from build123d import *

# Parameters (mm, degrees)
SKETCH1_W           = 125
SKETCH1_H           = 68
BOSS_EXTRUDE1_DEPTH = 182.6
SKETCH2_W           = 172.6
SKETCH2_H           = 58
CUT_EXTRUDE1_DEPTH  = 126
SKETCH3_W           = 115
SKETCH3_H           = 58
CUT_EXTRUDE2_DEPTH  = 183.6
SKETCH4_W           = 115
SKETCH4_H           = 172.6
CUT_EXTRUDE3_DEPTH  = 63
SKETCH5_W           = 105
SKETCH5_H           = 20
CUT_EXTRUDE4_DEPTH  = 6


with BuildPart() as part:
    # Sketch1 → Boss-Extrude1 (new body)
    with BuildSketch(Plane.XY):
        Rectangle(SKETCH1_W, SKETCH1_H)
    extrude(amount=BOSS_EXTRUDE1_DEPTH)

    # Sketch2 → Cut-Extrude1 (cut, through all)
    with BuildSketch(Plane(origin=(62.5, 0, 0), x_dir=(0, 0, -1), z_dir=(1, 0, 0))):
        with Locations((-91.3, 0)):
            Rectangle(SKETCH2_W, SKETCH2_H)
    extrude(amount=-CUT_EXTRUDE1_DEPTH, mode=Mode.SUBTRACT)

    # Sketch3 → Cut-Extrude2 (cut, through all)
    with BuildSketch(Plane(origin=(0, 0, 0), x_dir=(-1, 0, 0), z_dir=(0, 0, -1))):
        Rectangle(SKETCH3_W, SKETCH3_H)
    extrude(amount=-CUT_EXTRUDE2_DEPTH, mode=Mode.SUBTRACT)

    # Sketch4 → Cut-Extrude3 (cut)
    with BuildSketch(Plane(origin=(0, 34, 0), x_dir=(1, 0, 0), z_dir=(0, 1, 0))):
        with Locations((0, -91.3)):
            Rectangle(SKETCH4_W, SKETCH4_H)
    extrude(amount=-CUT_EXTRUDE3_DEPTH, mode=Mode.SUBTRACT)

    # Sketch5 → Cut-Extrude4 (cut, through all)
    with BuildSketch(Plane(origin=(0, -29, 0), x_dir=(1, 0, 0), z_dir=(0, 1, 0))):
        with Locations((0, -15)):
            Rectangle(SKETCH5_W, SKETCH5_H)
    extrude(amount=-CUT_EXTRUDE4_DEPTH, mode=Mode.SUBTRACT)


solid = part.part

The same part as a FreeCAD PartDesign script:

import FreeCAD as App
import Part
import Sketcher
from FreeCAD import Vector
Q = App.Units.Quantity


def add_polygon(sketch, points):
    """Adds a closed chain of lines whose ends are joined by coincident constraints."""
    first, n = sketch.GeometryCount, len(points)
    for a, b in zip(points, points[1:] + points[:1]):
        sketch.addGeometry(Part.LineSegment(App.Vector(*a, 0), App.Vector(*b, 0)), False)
    for i in range(n):
        sketch.addConstraint(Sketcher.Constraint("Coincident", first + i, 2, first + (i + 1) % n, 1))

doc = App.newDocument("Part")
body = doc.addObject("PartDesign::Body", "Body")

# Sketch on XY plane
sketch1 = body.newObject("Sketcher::SketchObject", "Sketch")
sketch1.AttachmentSupport = (doc.getObject("XY_Plane"), [""])
sketch1.MapMode = "FlatFace"
add_polygon(sketch1, [(-62.5, 34), (-62.5, -34), (62.5, -34), (62.5, 34)])  # lines 0-3
sketch1.addConstraint([
    Sketcher.Constraint("Vertical", 0),
    Sketcher.Constraint("Horizontal", 1),
    Sketcher.Constraint("Vertical", 2),
    Sketcher.Constraint("Horizontal", 3),
    Sketcher.Constraint("Symmetric", 0, 2, 2, 2, -1, 1),
    Sketcher.Constraint("DistanceX", 1, 1, 1, 2, Q("125 mm")),
    Sketcher.Constraint("DistanceY", 0, 2, 0, 1, Q("68 mm")),
])
pad1 = body.newObject("PartDesign::Pad", "Pad")
pad1.Profile = sketch1
pad1.Length = 182.6

# Sketch on YZ plane
sketch2 = body.newObject("Sketcher::SketchObject", "Sketch001")
sketch2.AttachmentSupport = (doc.getObject("YZ_Plane"), [""])
sketch2.MapMode = "FlatFace"
sketch2.AttachmentOffset = App.Placement(Vector(0, 0, 62.5), App.Rotation())
add_polygon(sketch2, [(29, 177.6), (-29, 177.6), (-29, 5), (29, 5)])  # lines 0-3
sketch2.addConstraint([
    Sketcher.Constraint("Horizontal", 0),
    Sketcher.Constraint("Vertical", 1),
    Sketcher.Constraint("Horizontal", 2),
    Sketcher.Constraint("Vertical", 3),
    Sketcher.Constraint("DistanceX", 0, 2, 0, 1, Q("58 mm")),
    Sketcher.Constraint("DistanceY", 1, 2, 1, 1, Q("172.6 mm")),
    Sketcher.Constraint("DistanceX", 0, 2, -1, 1, Q("29 mm")),
    Sketcher.Constraint("DistanceY", -1, 1, 1, 2, Q("5 mm")),
])
pocket1 = body.newObject("PartDesign::Pocket", "Pocket")
pocket1.Profile = sketch2
pocket1.Type = "ThroughAll"

# Sketch on XY plane
sketch3 = body.newObject("Sketcher::SketchObject", "Sketch002")
sketch3.AttachmentSupport = (doc.getObject("XY_Plane"), [""])
sketch3.MapMode = "FlatFace"
add_polygon(sketch3, [(57.5, 29), (57.5, -29), (-57.5, -29), (-57.5, 29)])  # lines 0-3
sketch3.addConstraint([
    Sketcher.Constraint("Vertical", 0),
    Sketcher.Constraint("Horizontal", 1),
    Sketcher.Constraint("Vertical", 2),
    Sketcher.Constraint("Horizontal", 3),
    Sketcher.Constraint("Symmetric", 0, 2, 2, 2, -1, 1),
    Sketcher.Constraint("DistanceX", 1, 2, 1, 1, Q("115 mm")),
    Sketcher.Constraint("DistanceY", 0, 2, 0, 1, Q("58 mm")),
])
pocket2 = body.newObject("PartDesign::Pocket", "Pocket001")
pocket2.Profile = sketch3
pocket2.Type = "ThroughAll"
pocket2.Reversed = True

# Sketch on XZ plane
sketch4 = body.newObject("Sketcher::SketchObject", "Sketch003")
sketch4.AttachmentSupport = (doc.getObject("XZ_Plane"), [""])
sketch4.MapMode = "FlatFace"
sketch4.AttachmentOffset = App.Placement(Vector(0, 0, -34), App.Rotation())
add_polygon(sketch4, [(-57.5, 5), (-57.5, 177.6), (57.5, 177.6), (57.5, 5)])  # lines 0-3
sketch4.addConstraint([
    Sketcher.Constraint("Vertical", 0),
    Sketcher.Constraint("Horizontal", 1),
    Sketcher.Constraint("Vertical", 2),
    Sketcher.Constraint("Horizontal", 3),
    Sketcher.Constraint("DistanceX", 1, 1, 1, 2, Q("115 mm")),
    Sketcher.Constraint("DistanceY", 0, 1, 0, 2, Q("172.6 mm")),
    Sketcher.Constraint("DistanceY", -1, 1, 2, 2, Q("5 mm")),
    Sketcher.Constraint("DistanceX", 0, 2, -1, 1, Q("57.5 mm")),
])
pocket3 = body.newObject("PartDesign::Pocket", "Pocket002")
pocket3.Profile = sketch4
pocket3.Length = 63
pocket3.Reversed = True

# Sketch on XZ plane
sketch5 = body.newObject("Sketcher::SketchObject", "Sketch004")
sketch5.AttachmentSupport = (doc.getObject("XZ_Plane"), [""])
sketch5.MapMode = "FlatFace"
sketch5.AttachmentOffset = App.Placement(Vector(0, 0, 29), App.Rotation())
add_polygon(sketch5, [(-52.5, 5), (-52.5, 25), (52.5, 25), (52.5, 5)])  # lines 0-3
sketch5.addConstraint([
    Sketcher.Constraint("Vertical", 0),
    Sketcher.Constraint("Horizontal", 1),
    Sketcher.Constraint("Vertical", 2),
    Sketcher.Constraint("Horizontal", 3),
    Sketcher.Constraint("DistanceX", 1, 1, 1, 2, Q("105 mm")),
    Sketcher.Constraint("DistanceY", 0, 1, 0, 2, Q("20 mm")),
    Sketcher.Constraint("DistanceY", -1, 1, 0, 2, Q("25 mm")),
    Sketcher.Constraint("DistanceX", 0, 2, -1, 1, Q("52.5 mm")),
])
pocket4 = body.newObject("PartDesign::Pocket", "Pocket003")
pocket4.Profile = sketch5
pocket4.Type = "ThroughAll"
pocket4.Reversed = True

doc.recompute()
